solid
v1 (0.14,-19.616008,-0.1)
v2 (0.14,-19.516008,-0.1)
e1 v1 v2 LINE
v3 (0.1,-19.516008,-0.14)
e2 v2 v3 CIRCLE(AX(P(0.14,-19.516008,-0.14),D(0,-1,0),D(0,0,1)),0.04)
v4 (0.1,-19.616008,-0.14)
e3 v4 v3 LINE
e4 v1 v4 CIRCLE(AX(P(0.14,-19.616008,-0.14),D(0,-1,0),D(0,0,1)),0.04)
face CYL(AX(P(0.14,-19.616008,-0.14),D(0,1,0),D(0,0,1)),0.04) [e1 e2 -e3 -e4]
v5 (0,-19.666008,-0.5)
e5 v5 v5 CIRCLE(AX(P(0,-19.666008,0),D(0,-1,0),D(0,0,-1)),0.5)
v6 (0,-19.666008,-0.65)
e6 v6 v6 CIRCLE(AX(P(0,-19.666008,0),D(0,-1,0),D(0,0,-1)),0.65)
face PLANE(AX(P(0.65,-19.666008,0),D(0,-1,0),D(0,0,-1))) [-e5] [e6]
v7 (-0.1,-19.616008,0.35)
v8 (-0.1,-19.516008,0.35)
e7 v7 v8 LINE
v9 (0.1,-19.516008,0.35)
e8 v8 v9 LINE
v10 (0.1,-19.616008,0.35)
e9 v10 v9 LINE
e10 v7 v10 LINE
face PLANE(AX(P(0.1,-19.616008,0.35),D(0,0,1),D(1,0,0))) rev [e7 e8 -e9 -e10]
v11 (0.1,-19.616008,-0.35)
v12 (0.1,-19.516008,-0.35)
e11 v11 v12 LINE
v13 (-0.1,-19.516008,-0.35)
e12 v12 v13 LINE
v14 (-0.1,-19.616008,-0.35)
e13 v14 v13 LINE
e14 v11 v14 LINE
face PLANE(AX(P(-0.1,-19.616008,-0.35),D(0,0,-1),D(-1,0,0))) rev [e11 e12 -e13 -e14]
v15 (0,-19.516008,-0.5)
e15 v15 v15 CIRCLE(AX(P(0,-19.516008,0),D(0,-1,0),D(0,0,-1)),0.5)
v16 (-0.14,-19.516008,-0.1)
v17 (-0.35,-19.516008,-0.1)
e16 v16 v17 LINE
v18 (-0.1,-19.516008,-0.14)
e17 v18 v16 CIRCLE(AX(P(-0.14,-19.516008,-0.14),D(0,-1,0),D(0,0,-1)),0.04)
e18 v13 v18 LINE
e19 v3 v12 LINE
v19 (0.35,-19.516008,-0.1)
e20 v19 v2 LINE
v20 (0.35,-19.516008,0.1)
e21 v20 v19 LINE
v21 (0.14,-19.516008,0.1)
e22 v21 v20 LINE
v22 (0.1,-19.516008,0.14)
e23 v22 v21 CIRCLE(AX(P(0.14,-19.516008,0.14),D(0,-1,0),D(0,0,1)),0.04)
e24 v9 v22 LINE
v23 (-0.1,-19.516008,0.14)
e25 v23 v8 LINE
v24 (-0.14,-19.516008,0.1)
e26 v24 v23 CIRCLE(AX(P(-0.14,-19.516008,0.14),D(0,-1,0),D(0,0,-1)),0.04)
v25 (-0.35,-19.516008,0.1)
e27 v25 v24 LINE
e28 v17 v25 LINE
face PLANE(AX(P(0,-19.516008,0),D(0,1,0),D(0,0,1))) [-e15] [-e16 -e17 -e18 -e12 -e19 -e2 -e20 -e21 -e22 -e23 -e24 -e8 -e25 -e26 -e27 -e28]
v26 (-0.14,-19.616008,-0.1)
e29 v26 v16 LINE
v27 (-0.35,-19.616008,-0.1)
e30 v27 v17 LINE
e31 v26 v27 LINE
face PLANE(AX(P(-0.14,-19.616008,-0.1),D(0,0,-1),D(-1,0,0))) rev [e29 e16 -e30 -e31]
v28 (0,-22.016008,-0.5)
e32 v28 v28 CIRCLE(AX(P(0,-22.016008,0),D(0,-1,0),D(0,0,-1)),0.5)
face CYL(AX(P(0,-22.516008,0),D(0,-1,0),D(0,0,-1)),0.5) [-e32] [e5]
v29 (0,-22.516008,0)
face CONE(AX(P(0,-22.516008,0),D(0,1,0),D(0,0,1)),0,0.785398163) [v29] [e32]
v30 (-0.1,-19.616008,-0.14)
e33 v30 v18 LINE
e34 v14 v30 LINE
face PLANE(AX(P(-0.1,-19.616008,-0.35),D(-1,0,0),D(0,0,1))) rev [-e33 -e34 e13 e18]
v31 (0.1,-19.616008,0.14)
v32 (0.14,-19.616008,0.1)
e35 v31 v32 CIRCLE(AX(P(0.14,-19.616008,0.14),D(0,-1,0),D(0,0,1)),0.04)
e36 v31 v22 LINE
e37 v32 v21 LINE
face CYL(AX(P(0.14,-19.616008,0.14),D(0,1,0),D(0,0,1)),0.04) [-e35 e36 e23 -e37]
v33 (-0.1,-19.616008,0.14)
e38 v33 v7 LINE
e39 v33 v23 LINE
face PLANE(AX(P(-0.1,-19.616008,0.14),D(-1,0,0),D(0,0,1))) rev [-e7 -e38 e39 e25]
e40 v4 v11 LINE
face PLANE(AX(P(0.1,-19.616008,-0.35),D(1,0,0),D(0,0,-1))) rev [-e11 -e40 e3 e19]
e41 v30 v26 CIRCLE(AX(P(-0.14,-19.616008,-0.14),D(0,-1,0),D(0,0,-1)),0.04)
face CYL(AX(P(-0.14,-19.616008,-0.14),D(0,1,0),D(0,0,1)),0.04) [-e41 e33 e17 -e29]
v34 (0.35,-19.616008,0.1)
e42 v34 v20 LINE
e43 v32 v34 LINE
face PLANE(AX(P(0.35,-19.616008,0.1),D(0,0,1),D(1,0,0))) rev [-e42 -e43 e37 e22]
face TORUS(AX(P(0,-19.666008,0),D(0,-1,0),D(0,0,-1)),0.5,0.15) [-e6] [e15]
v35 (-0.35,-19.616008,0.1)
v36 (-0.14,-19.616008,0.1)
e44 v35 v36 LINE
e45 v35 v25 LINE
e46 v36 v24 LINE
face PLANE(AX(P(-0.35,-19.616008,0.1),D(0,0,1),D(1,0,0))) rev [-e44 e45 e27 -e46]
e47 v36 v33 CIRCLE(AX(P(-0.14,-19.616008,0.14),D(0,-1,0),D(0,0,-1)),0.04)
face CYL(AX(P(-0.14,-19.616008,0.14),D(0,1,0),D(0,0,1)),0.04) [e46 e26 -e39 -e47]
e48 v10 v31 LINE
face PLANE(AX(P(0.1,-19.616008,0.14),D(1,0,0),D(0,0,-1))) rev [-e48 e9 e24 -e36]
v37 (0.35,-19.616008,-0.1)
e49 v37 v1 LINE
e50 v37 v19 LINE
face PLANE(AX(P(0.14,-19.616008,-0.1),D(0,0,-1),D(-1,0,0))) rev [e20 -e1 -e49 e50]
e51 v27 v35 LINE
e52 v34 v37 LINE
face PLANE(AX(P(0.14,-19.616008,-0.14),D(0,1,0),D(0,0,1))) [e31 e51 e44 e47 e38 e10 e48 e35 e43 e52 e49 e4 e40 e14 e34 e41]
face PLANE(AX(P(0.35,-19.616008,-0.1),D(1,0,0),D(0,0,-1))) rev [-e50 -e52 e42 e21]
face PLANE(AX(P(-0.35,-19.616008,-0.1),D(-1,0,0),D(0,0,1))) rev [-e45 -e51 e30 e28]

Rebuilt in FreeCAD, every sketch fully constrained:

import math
import FreeCAD as App
import Part
import Sketcher

V = App.Vector
Q = App.Units.Quantity

doc = App.newDocument("Part")
body = doc.addObject("PartDesign::Body", "Body")

# Sketch on XY plane
sketch1 = body.newObject("Sketcher::SketchObject", "Sketch")
sketch1.AttachmentSupport = (doc.getObject("XY_Plane"), [""])
sketch1.MapMode = "FlatFace"
sketch1.addGeometry(Part.LineSegment(V(0.5, -19.52, 0), V(0, -19.52, 0)), False)
sketch1.addGeometry(Part.LineSegment(V(0, -19.52, 0), V(0, -22.52, 0)), False)
sketch1.addGeometry(Part.LineSegment(V(0, -22.52, 0), V(0.5, -22.02, 0)), False)
sketch1.addGeometry(Part.LineSegment(V(0.5, -22.02, 0), V(0.5, -19.67, 0)), False)
sketch1.addGeometry(Part.LineSegment(V(0.5, -19.67, 0), V(0.65, -19.67, 0)), False)
sketch1.addGeometry(Part.ArcOfCircle(Part.Circle(V(0.5, -19.67, 0), V(0, 0, 1), 0.15), math.radians(0), math.radians(90)), False)
sketch1.addConstraint(Sketcher.Constraint("Coincident", 0, 2, 1, 1))
sketch1.addConstraint(Sketcher.Constraint("Coincident", 1, 2, 2, 1))
sketch1.addConstraint(Sketcher.Constraint("Coincident", 2, 2, 3, 1))
sketch1.addConstraint(Sketcher.Constraint("Coincident", 3, 2, 4, 1))
sketch1.addConstraint(Sketcher.Constraint("Coincident", 4, 2, 5, 1))
sketch1.addConstraint(Sketcher.Constraint("Tangent", 5, 2, 0, 1))
sketch1.addConstraint(Sketcher.Constraint("Horizontal", 0))
sketch1.addConstraint(Sketcher.Constraint("Vertical", 1))
sketch1.addConstraint(Sketcher.Constraint("Vertical", 3))
sketch1.addConstraint(Sketcher.Constraint("Horizontal", 4))
sketch1.addConstraint(Sketcher.Constraint("Coincident", 3, 2, 5, 3))
sketch1.addConstraint(Sketcher.Constraint("PointOnObject", 0, 2, -2))
sketch1.addConstraint(Sketcher.Constraint("DistanceY", 1, 2, 1, 1, 3.0))
sketch1.addConstraint(Sketcher.Constraint("Angle", 2, Q("45 deg")))
sketch1.addConstraint(Sketcher.Constraint("Radius", 5, 0.15))
sketch1.addConstraint(Sketcher.Constraint("DistanceX", 0, 2, 0, 1, 0.5))
sketch1.addConstraint(Sketcher.Constraint("DistanceY", 5, 3, -1, 1, 19.666008))
revolution = body.newObject("PartDesign::Revolution", "Revolution")
revolution.Profile = sketch1
revolution.ReferenceAxis = (sketch1, ["V_Axis"])
revolution.Angle = 360

# Sketch on XZ plane
sketch2 = body.newObject("Sketcher::SketchObject", "Sketch001")
sketch2.AttachmentSupport = (doc.getObject("XZ_Plane"), [""])
sketch2.MapMode = "FlatFace"
sketch2.AttachmentOffset = App.Placement(V(0, 0, 19.516008), App.Rotation())
sketch2.addGeometry(Part.LineSegment(V(0.1, -0.35, 0), V(-0.1, -0.35, 0)), False)
sketch2.addGeometry(Part.LineSegment(V(-0.1, -0.35, 0), V(-0.1, -0.14, 0)), False)
sketch2.addGeometry(Part.ArcOfCircle(Part.Circle(V(-0.14, -0.14, 0), V(0, 0, 1), 0.04), math.radians(0), math.radians(90)), False)
sketch2.addGeometry(Part.LineSegment(V(-0.14, -0.1, 0), V(-0.35, -0.1, 0)), False)
sketch2.addGeometry(Part.LineSegment(V(-0.35, -0.1, 0), V(-0.35, 0.1, 0)), False)
sketch2.addGeometry(Part.LineSegment(V(-0.35, 0.1, 0), V(-0.14, 0.1, 0)), False)
sketch2.addGeometry(Part.ArcOfCircle(Part.Circle(V(-0.14, 0.14, 0), V(0, 0, 1), 0.04), math.radians(-90), math.radians(0)), False)
sketch2.addGeometry(Part.LineSegment(V(-0.1, 0.14, 0), V(-0.1, 0.35, 0)), False)
sketch2.addGeometry(Part.LineSegment(V(-0.1, 0.35, 0), V(0.1, 0.35, 0)), False)
sketch2.addGeometry(Part.LineSegment(V(0.1, 0.35, 0), V(0.1, 0.14, 0)), False)
sketch2.addGeometry(Part.ArcOfCircle(Part.Circle(V(0.14, 0.14, 0), V(0, 0, 1), 0.04), math.radians(-180), math.radians(-90)), False)
sketch2.addGeometry(Part.LineSegment(V(0.14, 0.1, 0), V(0.35, 0.1, 0)), False)
sketch2.addGeometry(Part.LineSegment(V(0.35, 0.1, 0), V(0.35, -0.1, 0)), False)
sketch2.addGeometry(Part.LineSegment(V(0.35, -0.1, 0), V(0.14, -0.1, 0)), False)
sketch2.addGeometry(Part.ArcOfCircle(Part.Circle(V(0.14, -0.14, 0), V(0, 0, 1), 0.04), math.radians(90), math.radians(180)), False)
sketch2.addGeometry(Part.LineSegment(V(0.1, -0.14, 0), V(0.1, -0.35, 0)), False)
sketch2.addConstraint(Sketcher.Constraint("Coincident", 0, 2, 1, 1))
sketch2.addConstraint(Sketcher.Constraint("Tangent", 1, 2, 2, 1))
sketch2.addConstraint(Sketcher.Constraint("Tangent", 2, 2, 3, 1))
sketch2.addConstraint(Sketcher.Constraint("Coincident", 3, 2, 4, 1))
sketch2.addConstraint(Sketcher.Constraint("Coincident", 4, 2, 5, 1))
sketch2.addConstraint(Sketcher.Constraint("Tangent", 5, 2, 6, 1))
sketch2.addConstraint(Sketcher.Constraint("Tangent", 6, 2, 7, 1))
sketch2.addConstraint(Sketcher.Constraint("Coincident", 7, 2, 8, 1))
sketch2.addConstraint(Sketcher.Constraint("Coincident", 8, 2, 9, 1))
sketch2.addConstraint(Sketcher.Constraint("Tangent", 9, 2, 10, 1))
sketch2.addConstraint(Sketcher.Constraint("Tangent", 10, 2, 11, 1))
sketch2.addConstraint(Sketcher.Constraint("Coincident", 11, 2, 12, 1))
sketch2.addConstraint(Sketcher.Constraint("Coincident", 12, 2, 13, 1))
sketch2.addConstraint(Sketcher.Constraint("Tangent", 13, 2, 14, 1))
sketch2.addConstraint(Sketcher.Constraint("Tangent", 14, 2, 15, 1))
sketch2.addConstraint(Sketcher.Constraint("Coincident", 15, 2, 0, 1))
sketch2.addConstraint(Sketcher.Constraint("Horizontal", 0))
sketch2.addConstraint(Sketcher.Constraint("Vertical", 1))
sketch2.addConstraint(Sketcher.Constraint("Horizontal", 3))
sketch2.addConstraint(Sketcher.Constraint("Vertical", 4))
sketch2.addConstraint(Sketcher.Constraint("Horizontal", 5))
sketch2.addConstraint(Sketcher.Constraint("Vertical", 7))
sketch2.addConstraint(Sketcher.Constraint("Horizontal", 8))
sketch2.addConstraint(Sketcher.Constraint("Vertical", 9))
sketch2.addConstraint(Sketcher.Constraint("Horizontal", 11))
sketch2.addConstraint(Sketcher.Constraint("Vertical", 12))
sketch2.addConstraint(Sketcher.Constraint("Horizontal", 13))
sketch2.addConstraint(Sketcher.Constraint("Vertical", 15))
sketch2.addConstraint(Sketcher.Constraint("Equal", 2, 6))
sketch2.addConstraint(Sketcher.Constraint("Equal", 6, 10))
sketch2.addConstraint(Sketcher.Constraint("Equal", 10, 14))
sketch2.addConstraint(Sketcher.Constraint("Symmetric", 2, 3, 10, 3, -1, 1))
sketch2.addConstraint(Sketcher.Constraint("Symmetric", 6, 3, 14, 3, -1, 1))
sketch2.addConstraint(Sketcher.Constraint("Symmetric", 6, 3, 10, 3, -2))
sketch2.addConstraint(Sketcher.Constraint("Equal", 5, 11))
sketch2.addConstraint(Sketcher.Constraint("Equal", 13, 1))
sketch2.addConstraint(Sketcher.Constraint("Equal", 8, 4))
sketch2.addConstraint(Sketcher.Constraint("Equal", 1, 7))
sketch2.addConstraint(Sketcher.Constraint("Radius", 2, 0.04))
sketch2.addConstraint(Sketcher.Constraint("DistanceX", 0, 2, 0, 1, 0.2))
sketch2.addConstraint(Sketcher.Constraint("DistanceX", 3, 2, 3, 1, 0.21))
pocket1 = body.newObject("PartDesign::Pocket", "Pocket")
pocket1.Profile = sketch2
pocket1.Length = 0.1
pocket1.Reversed = True

doc.recompute()
